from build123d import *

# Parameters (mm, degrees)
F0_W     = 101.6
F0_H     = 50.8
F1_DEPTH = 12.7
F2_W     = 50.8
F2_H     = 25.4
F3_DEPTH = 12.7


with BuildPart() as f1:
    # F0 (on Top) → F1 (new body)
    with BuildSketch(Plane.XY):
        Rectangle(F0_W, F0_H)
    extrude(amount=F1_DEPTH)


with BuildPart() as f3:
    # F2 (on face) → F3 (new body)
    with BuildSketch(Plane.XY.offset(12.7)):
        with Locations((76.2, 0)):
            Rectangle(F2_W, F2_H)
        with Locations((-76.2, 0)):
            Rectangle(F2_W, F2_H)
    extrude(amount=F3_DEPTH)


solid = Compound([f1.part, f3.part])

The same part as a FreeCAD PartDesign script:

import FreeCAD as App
import Part
import Sketcher
from FreeCAD import Vector
Q = App.Units.Quantity

doc = App.newDocument("Part")
body = doc.addObject("PartDesign::Body", "Body")

sketch1 = body.newObject("Sketcher::SketchObject", "Sketch")
sketch1.AttachmentSupport = (doc.getObject("XY_Plane"), [""])
sketch1.MapMode = "FlatFace"
sketch1.addGeometry(Part.LineSegment(Vector(-50.8, 25.4, 0), Vector(-50.8, -25.4, 0)), False)
sketch1.addGeometry(Part.LineSegment(Vector(-50.8, -25.4, 0), Vector(50.8, -25.4, 0)), False)
sketch1.addGeometry(Part.LineSegment(Vector(50.8, -25.4, 0), Vector(50.8, 25.4, 0)), False)
sketch1.addGeometry(Part.LineSegment(Vector(50.8, 25.4, 0), Vector(-50.8, 25.4, 0)), False)
sketch1.addConstraint(Sketcher.Constraint("Coincident", 0, 2, 1, 1))
sketch1.addConstraint(Sketcher.Constraint("Coincident", 1, 2, 2, 1))
sketch1.addConstraint(Sketcher.Constraint("Coincident", 2, 2, 3, 1))
sketch1.addConstraint(Sketcher.Constraint("Coincident", 3, 2, 0, 1))
sketch1.addConstraint(Sketcher.Constraint("Vertical", 0))
sketch1.addConstraint(Sketcher.Constraint("Horizontal", 1))
sketch1.addConstraint(Sketcher.Constraint("Vertical", 2))
sketch1.addConstraint(Sketcher.Constraint("Horizontal", 3))
sketch1.addConstraint(Sketcher.Constraint("Symmetric", 0, 2, 2, 2, -1, 1))
sketch1.addConstraint(Sketcher.Constraint("DistanceX", 1, 1, 1, 2, Q("4 in")))
sketch1.addConstraint(Sketcher.Constraint("DistanceY", 0, 2, 0, 1, Q("2 in")))
pad1 = body.newObject("PartDesign::Pad", "Pad")
pad1.Profile = sketch1
pad1.Length = Q("0.5 in")
body2 = doc.addObject("PartDesign::Body", "Body001")
body2.AllowCompound = True

sketch2 = body2.newObject("Sketcher::SketchObject", "Sketch001")
sketch2.AttachmentSupport = (doc.getObject("XY_Plane001"), [""])
sketch2.MapMode = "FlatFace"
sketch2.AttachmentOffset = App.Placement(Vector(0, 0, 0.5 * 25.4), App.Rotation())
sketch2.addGeometry(Part.LineSegment(Vector(50.8, 12.7, 0), Vector(50.8, -12.7, 0)), False)
sketch2.addGeometry(Part.LineSegment(Vector(50.8, -12.7, 0), Vector(101.6, -12.7, 0)), False)
sketch2.addGeometry(Part.LineSegment(Vector(101.6, -12.7, 0), Vector(101.6, 12.7, 0)), False)
sketch2.addGeometry(Part.LineSegment(Vector(101.6, 12.7, 0), Vector(50.8, 12.7, 0)), False)
sketch2.addGeometry(Part.LineSegment(Vector(-101.6, 12.7, 0), Vector(-101.6, -12.7, 0)), False)
sketch2.addGeometry(Part.LineSegment(Vector(-101.6, -12.7, 0), Vector(-50.8, -12.7, 0)), False)
sketch2.addGeometry(Part.LineSegment(Vector(-50.8, -12.7, 0), Vector(-50.8, 12.7, 0)), False)
sketch2.addGeometry(Part.LineSegment(Vector(-50.8, 12.7, 0), Vector(-101.6, 12.7, 0)), False)
sketch2.addConstraint(Sketcher.Constraint("Coincident", 0, 2, 1, 1))
sketch2.addConstraint(Sketcher.Constraint("Coincident", 1, 2, 2, 1))
sketch2.addConstraint(Sketcher.Constraint("Coincident", 2, 2, 3, 1))
sketch2.addConstraint(Sketcher.Constraint("Coincident", 3, 2, 0, 1))
sketch2.addConstraint(Sketcher.Constraint("Coincident", 4, 2, 5, 1))
sketch2.addConstraint(Sketcher.Constraint("Coincident", 5, 2, 6, 1))
sketch2.addConstraint(Sketcher.Constraint("Coincident", 6, 2, 7, 1))
sketch2.addConstraint(Sketcher.Constraint("Coincident", 7, 2, 4, 1))
sketch2.addConstraint(Sketcher.Constraint("Vertical", 0))
sketch2.addConstraint(Sketcher.Constraint("Horizontal", 1))
sketch2.addConstraint(Sketcher.Constraint("Vertical", 2))
sketch2.addConstraint(Sketcher.Constraint("Horizontal", 3))
sketch2.addConstraint(Sketcher.Constraint("Vertical", 4))
sketch2.addConstraint(Sketcher.Constraint("Horizontal", 5))
sketch2.addConstraint(Sketcher.Constraint("Vertical", 6))
sketch2.addConstraint(Sketcher.Constraint("Horizontal", 7))
sketch2.addConstraint(Sketcher.Constraint("Symmetric", 2, 2, 4, 2, -1, 1))
sketch2.addConstraint(Sketcher.Constraint("Symmetric", 0, 2, 6, 2, -1, 1))
sketch2.addConstraint(Sketcher.Constraint("Horizontal", 1, 2, 4, 2))
sketch2.addConstraint(Sketcher.Constraint("DistanceX", 1, 1, 1, 2, Q("2 in")))
sketch2.addConstraint(Sketcher.Constraint("DistanceY", 0, 2, 0, 1, Q("1 in")))
sketch2.addConstraint(Sketcher.Constraint("DistanceX", -1, 1, 0, 2, Q("2 in")))
pad2 = body2.newObject("PartDesign::Pad", "Pad001")
pad2.Profile = sketch2
pad2.Length = Q("0.5 in")

doc.recompute()
